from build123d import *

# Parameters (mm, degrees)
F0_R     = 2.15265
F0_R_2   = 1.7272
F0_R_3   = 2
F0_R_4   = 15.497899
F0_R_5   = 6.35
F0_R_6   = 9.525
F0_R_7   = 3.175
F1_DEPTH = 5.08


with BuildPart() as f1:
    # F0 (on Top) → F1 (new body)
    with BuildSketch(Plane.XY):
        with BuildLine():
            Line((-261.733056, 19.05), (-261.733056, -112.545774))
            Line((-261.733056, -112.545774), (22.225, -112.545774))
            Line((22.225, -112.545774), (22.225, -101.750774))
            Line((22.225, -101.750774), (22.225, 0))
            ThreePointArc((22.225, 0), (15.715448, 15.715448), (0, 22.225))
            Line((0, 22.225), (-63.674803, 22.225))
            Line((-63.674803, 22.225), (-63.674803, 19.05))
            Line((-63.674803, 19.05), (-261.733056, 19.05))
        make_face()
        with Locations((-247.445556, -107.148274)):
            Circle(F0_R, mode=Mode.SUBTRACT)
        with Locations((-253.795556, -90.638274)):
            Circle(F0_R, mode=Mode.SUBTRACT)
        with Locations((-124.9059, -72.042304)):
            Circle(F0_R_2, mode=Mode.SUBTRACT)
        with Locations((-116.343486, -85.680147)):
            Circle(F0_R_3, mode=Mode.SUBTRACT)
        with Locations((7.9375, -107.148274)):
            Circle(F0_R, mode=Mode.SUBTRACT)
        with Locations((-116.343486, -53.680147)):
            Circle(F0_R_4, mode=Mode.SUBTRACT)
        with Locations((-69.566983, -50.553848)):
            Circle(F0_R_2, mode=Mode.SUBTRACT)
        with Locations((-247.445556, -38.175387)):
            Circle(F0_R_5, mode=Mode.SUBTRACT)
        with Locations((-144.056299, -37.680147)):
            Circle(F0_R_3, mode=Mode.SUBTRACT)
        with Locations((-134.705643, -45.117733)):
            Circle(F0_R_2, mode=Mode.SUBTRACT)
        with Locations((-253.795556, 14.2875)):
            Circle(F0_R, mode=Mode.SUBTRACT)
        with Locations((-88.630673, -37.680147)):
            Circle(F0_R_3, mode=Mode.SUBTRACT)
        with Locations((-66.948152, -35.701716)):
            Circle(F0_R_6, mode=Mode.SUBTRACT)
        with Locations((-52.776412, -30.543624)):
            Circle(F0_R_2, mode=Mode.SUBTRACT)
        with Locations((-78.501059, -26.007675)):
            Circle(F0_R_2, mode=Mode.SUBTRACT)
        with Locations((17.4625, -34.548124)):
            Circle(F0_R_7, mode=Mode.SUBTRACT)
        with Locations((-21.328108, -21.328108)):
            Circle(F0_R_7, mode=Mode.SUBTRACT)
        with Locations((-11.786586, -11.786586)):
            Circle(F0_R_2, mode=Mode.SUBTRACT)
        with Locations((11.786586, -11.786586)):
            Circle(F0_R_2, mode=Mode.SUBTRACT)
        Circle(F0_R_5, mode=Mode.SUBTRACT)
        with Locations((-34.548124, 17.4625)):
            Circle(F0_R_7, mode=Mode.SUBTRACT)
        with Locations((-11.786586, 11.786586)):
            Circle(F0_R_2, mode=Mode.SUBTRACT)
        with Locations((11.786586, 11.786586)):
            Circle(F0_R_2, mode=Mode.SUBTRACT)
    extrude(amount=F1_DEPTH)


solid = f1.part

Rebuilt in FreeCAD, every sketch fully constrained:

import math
import FreeCAD as App
import Part
import Sketcher
Q = App.Units.Quantity

doc = App.newDocument("Part")
body = doc.addObject("PartDesign::Body", "Body")

sketch1 = body.newObject("Sketcher::SketchObject", "Sketch")
sketch1.AttachmentSupport = (doc.getObject("XY_Plane"), [""])
sketch1.MapMode = "FlatFace"
sketch1.addGeometry([
    Part.LineSegment(App.Vector(-261.733056, 19.05, 0), App.Vector(-261.733056, -112.545774, 0)),
    Part.LineSegment(App.Vector(-261.733056, -112.545774, 0), App.Vector(22.225, -112.545774, 0)),
    Part.LineSegment(App.Vector(22.225, -112.545774, 0), App.Vector(22.225, 0, 0)),
    Part.ArcOfCircle(Part.Circle(App.Vector(-0.000001, -0.000001, 0), App.Vector(0, 0, 1), 22.225001), math.radians(0.000002), math.radians(89.999998)),
    Part.LineSegment(App.Vector(0, 22.225, 0), App.Vector(-63.674803, 22.225, 0)),
    Part.LineSegment(App.Vector(-63.674803, 22.225, 0), App.Vector(-63.674803, 19.05, 0)),
    Part.LineSegment(App.Vector(-63.674803, 19.05, 0), App.Vector(-261.733056, 19.05, 0)),
    Part.Circle(App.Vector(-247.445556, -107.148274, 0), App.Vector(0, 0, 1), 2.15265),
    Part.Circle(App.Vector(-253.795556, -90.638274, 0), App.Vector(0, 0, 1), 2.15265),
    Part.Circle(App.Vector(-124.9059, -72.042304, 0), App.Vector(0, 0, 1), 1.7272),
    Part.Circle(App.Vector(-134.705643, -45.117733, 0), App.Vector(0, 0, 1), 1.7272),
    Part.Circle(App.Vector(-116.343486, -85.680147, 0), App.Vector(0, 0, 1), 2),
    Part.Circle(App.Vector(7.9375, -107.148274, 0), App.Vector(0, 0, 1), 2.15265),
    Part.Circle(App.Vector(-116.343486, -53.680147, 0), App.Vector(0, 0, 1), 15.497899),
    Part.Circle(App.Vector(-69.566983, -50.553848, 0), App.Vector(0, 0, 1), 1.7272),
    Part.Circle(App.Vector(-247.445556, -38.175387, 0), App.Vector(0, 0, 1), 6.35),
    Part.Circle(App.Vector(-144.056299, -37.680147, 0), App.Vector(0, 0, 1), 2),
    Part.Circle(App.Vector(-253.795556, 14.2875, 0), App.Vector(0, 0, 1), 2.15265),
    Part.Circle(App.Vector(-88.630673, -37.680147, 0), App.Vector(0, 0, 1), 2),
    Part.Circle(App.Vector(-66.948152, -35.701716, 0), App.Vector(0, 0, 1), 9.525),
    Part.Circle(App.Vector(-52.776412, -30.543624, 0), App.Vector(0, 0, 1), 1.7272),
    Part.Circle(App.Vector(-78.501059, -26.007675, 0), App.Vector(0, 0, 1), 1.7272),
    Part.Circle(App.Vector(17.4625, -34.548124, 0), App.Vector(0, 0, 1), 3.175),
    Part.Circle(App.Vector(-21.328108, -21.328108, 0), App.Vector(0, 0, 1), 3.175),
    Part.Circle(App.Vector(-11.786586, -11.786586, 0), App.Vector(0, 0, 1), 1.7272),
    Part.Circle(App.Vector(11.786586, -11.786586, 0), App.Vector(0, 0, 1), 1.7272),
    Part.Circle(App.Vector(0, 0, 0), App.Vector(0, 0, 1), 6.35),
    Part.Circle(App.Vector(-34.548124, 17.4625, 0), App.Vector(0, 0, 1), 3.175),
    Part.Circle(App.Vector(-11.786586, 11.786586, 0), App.Vector(0, 0, 1), 1.7272),
    Part.Circle(App.Vector(11.786586, 11.786586, 0), App.Vector(0, 0, 1), 1.7272),
], False)
sketch1.addConstraint([
    Sketcher.Constraint("Coincident", 0, 2, 1, 1),
    Sketcher.Constraint("Coincident", 1, 2, 2, 1),
    Sketcher.Constraint("Tangent", 2, 2, 3, 1),
    Sketcher.Constraint("Tangent", 3, 2, 4, 1),
    Sketcher.Constraint("Coincident", 4, 2, 5, 1),
    Sketcher.Constraint("Coincident", 5, 2, 6, 1),
    Sketcher.Constraint("Coincident", 6, 2, 0, 1),
    Sketcher.Constraint("Vertical", 0),
    Sketcher.Constraint("Horizontal", 1),
    Sketcher.Constraint("Vertical", 2),
    Sketcher.Constraint("Horizontal", 4),
    Sketcher.Constraint("Vertical", 5),
    Sketcher.Constraint("Horizontal", 6),
    Sketcher.Constraint("Coincident", 3, 3, -1, 1),
    Sketcher.Constraint("Coincident", 26, 3, -1, 1),
    Sketcher.Constraint("Equal", 7, 8),
    Sketcher.Constraint("Equal", 9, 10),
    Sketcher.Constraint("Equal", 8, 12),
    Sketcher.Constraint("Equal", 10, 14),
    Sketcher.Constraint("Equal", 11, 16),
    Sketcher.Constraint("Equal", 12, 17),
    Sketcher.Constraint("Equal", 16, 18),
    Sketcher.Constraint("Equal", 14, 20),
    Sketcher.Constraint("Equal", 20, 21),
    Sketcher.Constraint("Equal", 22, 23),
    Sketcher.Constraint("Equal", 21, 24),
    Sketcher.Constraint("Equal", 24, 25),
    Sketcher.Constraint("Equal", 15, 26),
    Sketcher.Constraint("Equal", 23, 27),
    Sketcher.Constraint("Equal", 25, 28),
    Sketcher.Constraint("Equal", 28, 29),
    Sketcher.Constraint("Symmetric", 25, 3, 28, 3, -1, 1),
    Sketcher.Constraint("Symmetric", 24, 3, 29, 3, -1, 1),
    Sketcher.Constraint("Symmetric", 24, 3, 25, 3, -2),
    Sketcher.Constraint("Horizontal", 7, 3, 12, 3),
    Sketcher.Constraint("Horizontal", 16, 3, 18, 3),
    Sketcher.Constraint("Vertical", 11, 3, 13, 3),
    Sketcher.Constraint("Vertical", 7, 3, 15, 3),
    Sketcher.Constraint("Vertical", 8, 3, 17, 3),
    Sketcher.Constraint("Diameter", 15, Q("0.5 in")),
    Sketcher.Constraint("Diameter", 19, Q("0.75 in")),
    Sketcher.Constraint("Diameter", 22, Q("0.25 in")),
    Sketcher.Constraint("Diameter", 9, Q("0.136 in")),
    Sketcher.Constraint("Radius", 3, Q("0.875 in")),
    Sketcher.Constraint("Diameter", 7, Q("0.1695 in")),
    Sketcher.Constraint("Diameter", 11, 4.0),
    Sketcher.Constraint("Diameter", 13, 30.995798),
    Sketcher.Constraint("DistanceY", 5, 2, 5, 1, Q("0.125 in")),
    Sketcher.Constraint("DistanceX", 8, 3, 7, 3, Q("0.25 in")),
    Sketcher.Constraint("DistanceY", 7, 3, 8, 3, Q("0.65 in")),
    Sketcher.Constraint("DistanceX", -1, 1, 12, 3, Q("0.3125 in")),
    Sketcher.Constraint("DistanceY", -1, 1, 17, 3, Q("0.5625 in")),
    Sketcher.Constraint("DistanceX", -1, 1, 22, 3, Q("0.6875 in")),
    Sketcher.Constraint("DistanceY", -1, 1, 27, 3, Q("0.6875 in")),
    Sketcher.Constraint("DistanceX", 0, 2, 7, 3, Q("0.5625 in")),
    Sketcher.Constraint("DistanceY", 0, 2, 7, 3, Q("0.2125 in")),
    Sketcher.Constraint("DistanceX", 9, 3, -1, 1, 124.9059),
    Sketcher.Constraint("DistanceX", 16, 3, -1, 1, 144.056299),
    Sketcher.Constraint("DistanceY", 11, 3, 13, 3, 32.0),
    Sketcher.Constraint("DistanceY", 13, 3, 14, 3, 3.126299),
    Sketcher.Constraint("DistanceY", 13, 3, 16, 3, 16.0),
    Sketcher.Constraint("DistanceY", 22, 3, 20, 3, 4.0045),
    Sketcher.Constraint("DistanceX", 1, 1, 1, 2, 283.958056),
    Sketcher.Constraint("DistanceX", 4, 2, 4, 1, 63.674803),
    Sketcher.Constraint("DistanceY", 0, 2, 0, 1, 131.595774),
    Sketcher.Constraint("DistanceY", 14, 3, -1, 1, 50.553848),
    Sketcher.Constraint("DistanceX", 19, 3, -1, 1, 66.948152),
    Sketcher.Constraint("DistanceX", 21, 3, -1, 1, 78.501059),
    Sketcher.Constraint("DistanceX", 23, 3, -1, 1, 21.328108),
    Sketcher.Constraint("DistanceY", 23, 3, -1, 1, 21.328108),
    Sketcher.Constraint("DistanceY", 7, 3, 9, 3, 35.10597),
    Sketcher.Constraint("DistanceY", 9, 3, 10, 3, 26.924571),
    Sketcher.Constraint("DistanceX", 7, 3, 11, 3, 131.10207),
    Sketcher.Constraint("DistanceX", 10, 3, 14, 3, 65.13866),
    Sketcher.Constraint("DistanceY", 13, 3, 15, 3, 15.50476),
    Sketcher.Constraint("DistanceX", 18, 3, 14, 3, 19.06369),
    Sketcher.Constraint("DistanceX", 14, 3, 19, 3, 2.618831),
    Sketcher.Constraint("DistanceY", 18, 3, 19, 3, 1.978431),
    Sketcher.Constraint("DistanceX", 19, 3, 20, 3, 14.17174),
    Sketcher.Constraint("DistanceY", 19, 3, 20, 3, 5.158092),
    Sketcher.Constraint("DistanceY", 19, 3, 21, 3, 9.694041),
    Sketcher.Constraint("DistanceY", 22, 3, 24, 3, 22.761538),
    Sketcher.Constraint("DistanceX", 24, 3, 25, 3, 23.573172),
    Sketcher.Constraint("DistanceX", 27, 3, 24, 3, 22.761538),
])
pad1 = body.newObject("PartDesign::Pad", "Pad")
pad1.Profile = sketch1
pad1.Length = Q("0.2 in")

doc.recompute()
